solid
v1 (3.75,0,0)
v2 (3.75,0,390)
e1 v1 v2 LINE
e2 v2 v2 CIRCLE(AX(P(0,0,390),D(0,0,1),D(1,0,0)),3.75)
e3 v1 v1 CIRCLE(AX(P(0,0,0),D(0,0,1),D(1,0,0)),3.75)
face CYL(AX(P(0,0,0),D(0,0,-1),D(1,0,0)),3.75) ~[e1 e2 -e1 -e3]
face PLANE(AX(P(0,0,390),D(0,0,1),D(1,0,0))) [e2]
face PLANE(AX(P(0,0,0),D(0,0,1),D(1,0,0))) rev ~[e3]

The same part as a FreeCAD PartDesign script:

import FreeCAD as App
import Part
import Sketcher

V = App.Vector

doc = App.newDocument("Part")
body = doc.addObject("PartDesign::Body", "Body")

sketch1 = body.newObject("Sketcher::SketchObject", "Sketch")
sketch1.AttachmentSupport = (doc.getObject("XY_Plane"), [""])
sketch1.MapMode = "FlatFace"
sketch1.addGeometry(Part.Circle(V(0, 0, 0), V(0, 0, 1), 3.8), False)
sketch1.addConstraint([
    Sketcher.Constraint("Coincident", 0, 3, -1, 1),
    Sketcher.Constraint("Diameter", 0, 7.5),
])
pad1 = body.newObject("PartDesign::Pad", "Pad")
pad1.Profile = sketch1
pad1.Length = 390

doc.recompute()
